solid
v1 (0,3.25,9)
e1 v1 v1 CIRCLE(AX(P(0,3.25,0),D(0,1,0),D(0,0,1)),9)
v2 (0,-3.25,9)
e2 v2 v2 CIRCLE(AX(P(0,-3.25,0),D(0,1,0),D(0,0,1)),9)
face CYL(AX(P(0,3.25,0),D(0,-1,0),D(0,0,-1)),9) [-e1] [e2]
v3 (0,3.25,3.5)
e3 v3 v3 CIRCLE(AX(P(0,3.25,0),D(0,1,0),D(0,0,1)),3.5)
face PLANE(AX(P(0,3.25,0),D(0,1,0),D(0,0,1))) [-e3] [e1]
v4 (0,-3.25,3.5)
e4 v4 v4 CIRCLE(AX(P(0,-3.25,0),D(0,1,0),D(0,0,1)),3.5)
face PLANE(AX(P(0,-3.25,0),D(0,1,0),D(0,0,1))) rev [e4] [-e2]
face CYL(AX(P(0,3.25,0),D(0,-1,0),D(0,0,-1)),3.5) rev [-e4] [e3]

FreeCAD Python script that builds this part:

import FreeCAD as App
import Part
import Sketcher
from FreeCAD import Vector
Q = App.Units.Quantity

doc = App.newDocument("Part")
body = doc.addObject("PartDesign::Body", "Body")

sketch1 = doc.addObject("Sketcher::SketchObject", "Sketch")
body.addObject(sketch1)
sketch1.AttachmentSupport = (doc.XZ_Plane, [""])
sketch1.MapMode = "FlatFace"
sketch1.addGeometry([
    Part.Circle(Vector(0, 0, 0), Vector(0, 0, 1), 9),
    Part.Circle(Vector(0, 0, 0), Vector(0, 0, 1), 3.5),
], False)
sketch1.addConstraint([
    Sketcher.Constraint("Coincident", 0, 3, -1, 1),
    Sketcher.Constraint("Coincident", 1, 3, -1, 1),
    Sketcher.Constraint("Diameter", 0, Q("18 mm")),
    Sketcher.Constraint("Diameter", 1, Q("7 mm")),
])
pad1 = doc.addObject("PartDesign::Pad", "Pad")
body.addObject(pad1)
pad1.Profile = sketch1
pad1.Length = 6.5
pad1.Midplane = True

doc.recompute()
